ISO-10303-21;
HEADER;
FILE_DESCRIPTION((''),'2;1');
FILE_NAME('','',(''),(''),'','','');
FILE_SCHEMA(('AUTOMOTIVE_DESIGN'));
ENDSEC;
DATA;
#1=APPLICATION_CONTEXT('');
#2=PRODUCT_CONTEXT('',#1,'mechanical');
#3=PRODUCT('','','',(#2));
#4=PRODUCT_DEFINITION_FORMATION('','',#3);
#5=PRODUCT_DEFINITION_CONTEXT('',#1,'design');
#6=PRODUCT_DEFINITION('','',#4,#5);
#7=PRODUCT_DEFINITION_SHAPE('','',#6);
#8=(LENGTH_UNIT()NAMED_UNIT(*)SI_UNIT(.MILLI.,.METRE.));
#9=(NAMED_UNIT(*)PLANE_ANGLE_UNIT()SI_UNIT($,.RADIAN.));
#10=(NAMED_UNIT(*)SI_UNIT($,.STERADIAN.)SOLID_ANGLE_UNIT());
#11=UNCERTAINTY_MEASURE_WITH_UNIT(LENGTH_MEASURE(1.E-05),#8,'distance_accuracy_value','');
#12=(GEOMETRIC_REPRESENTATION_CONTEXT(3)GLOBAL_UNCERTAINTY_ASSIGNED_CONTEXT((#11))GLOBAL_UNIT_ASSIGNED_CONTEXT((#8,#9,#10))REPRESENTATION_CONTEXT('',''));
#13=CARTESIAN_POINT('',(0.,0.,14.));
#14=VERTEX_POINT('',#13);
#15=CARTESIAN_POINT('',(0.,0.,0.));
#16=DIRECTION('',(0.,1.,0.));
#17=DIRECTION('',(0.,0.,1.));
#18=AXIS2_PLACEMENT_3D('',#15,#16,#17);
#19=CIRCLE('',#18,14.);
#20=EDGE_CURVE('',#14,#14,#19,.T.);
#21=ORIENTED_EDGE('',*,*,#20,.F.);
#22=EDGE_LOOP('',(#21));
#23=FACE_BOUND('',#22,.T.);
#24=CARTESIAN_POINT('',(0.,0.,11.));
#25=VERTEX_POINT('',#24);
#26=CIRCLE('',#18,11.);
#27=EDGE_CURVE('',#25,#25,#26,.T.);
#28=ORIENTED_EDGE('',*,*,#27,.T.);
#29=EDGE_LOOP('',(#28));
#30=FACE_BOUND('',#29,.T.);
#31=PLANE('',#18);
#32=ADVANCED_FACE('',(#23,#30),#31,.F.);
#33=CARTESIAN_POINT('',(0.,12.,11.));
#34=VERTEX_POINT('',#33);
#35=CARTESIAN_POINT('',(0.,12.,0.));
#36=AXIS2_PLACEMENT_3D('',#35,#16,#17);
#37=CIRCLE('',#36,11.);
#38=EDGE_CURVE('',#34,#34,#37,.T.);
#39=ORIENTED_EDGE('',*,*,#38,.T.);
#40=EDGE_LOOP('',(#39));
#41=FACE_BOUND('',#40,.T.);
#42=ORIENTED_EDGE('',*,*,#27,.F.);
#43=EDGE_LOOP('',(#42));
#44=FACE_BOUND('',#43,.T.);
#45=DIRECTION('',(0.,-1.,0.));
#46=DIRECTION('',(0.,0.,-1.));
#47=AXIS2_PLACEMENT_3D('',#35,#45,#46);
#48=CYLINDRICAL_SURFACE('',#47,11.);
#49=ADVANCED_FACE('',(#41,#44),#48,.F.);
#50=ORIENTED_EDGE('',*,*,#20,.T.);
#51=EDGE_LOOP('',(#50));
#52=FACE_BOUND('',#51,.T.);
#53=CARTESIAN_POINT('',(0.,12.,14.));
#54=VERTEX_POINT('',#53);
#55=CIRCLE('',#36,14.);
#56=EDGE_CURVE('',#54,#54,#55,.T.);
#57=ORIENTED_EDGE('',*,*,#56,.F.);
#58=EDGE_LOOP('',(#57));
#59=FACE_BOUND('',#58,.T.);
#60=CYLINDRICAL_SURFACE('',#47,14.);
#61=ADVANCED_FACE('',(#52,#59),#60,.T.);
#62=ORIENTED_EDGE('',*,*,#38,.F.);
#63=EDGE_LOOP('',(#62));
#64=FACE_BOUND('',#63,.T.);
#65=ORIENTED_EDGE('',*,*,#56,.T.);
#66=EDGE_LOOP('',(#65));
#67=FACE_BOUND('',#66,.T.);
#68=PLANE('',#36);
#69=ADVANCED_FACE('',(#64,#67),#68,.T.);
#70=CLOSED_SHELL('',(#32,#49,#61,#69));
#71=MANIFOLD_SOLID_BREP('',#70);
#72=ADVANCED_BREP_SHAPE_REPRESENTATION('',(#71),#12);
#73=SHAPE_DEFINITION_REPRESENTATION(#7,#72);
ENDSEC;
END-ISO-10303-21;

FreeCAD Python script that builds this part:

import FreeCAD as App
import Part
import Sketcher

V = App.Vector

doc = App.newDocument("Part")
body = doc.addObject("PartDesign::Body", "Body")

sketch1 = doc.addObject("Sketcher::SketchObject", "Sketch")
body.addObject(sketch1)
sketch1.AttachmentSupport = (doc.XZ_Plane, [""])
sketch1.MapMode = "FlatFace"
sketch1.addGeometry([
    Part.Circle(V(0, 0, 0), V(0, 0, 1), 14),
    Part.Circle(V(0, 0, 0), V(0, 0, 1), 11),
], False)
sketch1.addConstraint([
    Sketcher.Constraint("Coincident", 0, 3, -1, 1),
    Sketcher.Constraint("Coincident", 1, 3, -1, 1),
    Sketcher.Constraint("Diameter", 0, 28.0),
    Sketcher.Constraint("Diameter", 1, 22.0),
])
pad1 = doc.addObject("PartDesign::Pad", "Pad")
body.addObject(pad1)
pad1.Profile = sketch1
pad1.Length = 12
pad1.Reversed = True

doc.recompute()
